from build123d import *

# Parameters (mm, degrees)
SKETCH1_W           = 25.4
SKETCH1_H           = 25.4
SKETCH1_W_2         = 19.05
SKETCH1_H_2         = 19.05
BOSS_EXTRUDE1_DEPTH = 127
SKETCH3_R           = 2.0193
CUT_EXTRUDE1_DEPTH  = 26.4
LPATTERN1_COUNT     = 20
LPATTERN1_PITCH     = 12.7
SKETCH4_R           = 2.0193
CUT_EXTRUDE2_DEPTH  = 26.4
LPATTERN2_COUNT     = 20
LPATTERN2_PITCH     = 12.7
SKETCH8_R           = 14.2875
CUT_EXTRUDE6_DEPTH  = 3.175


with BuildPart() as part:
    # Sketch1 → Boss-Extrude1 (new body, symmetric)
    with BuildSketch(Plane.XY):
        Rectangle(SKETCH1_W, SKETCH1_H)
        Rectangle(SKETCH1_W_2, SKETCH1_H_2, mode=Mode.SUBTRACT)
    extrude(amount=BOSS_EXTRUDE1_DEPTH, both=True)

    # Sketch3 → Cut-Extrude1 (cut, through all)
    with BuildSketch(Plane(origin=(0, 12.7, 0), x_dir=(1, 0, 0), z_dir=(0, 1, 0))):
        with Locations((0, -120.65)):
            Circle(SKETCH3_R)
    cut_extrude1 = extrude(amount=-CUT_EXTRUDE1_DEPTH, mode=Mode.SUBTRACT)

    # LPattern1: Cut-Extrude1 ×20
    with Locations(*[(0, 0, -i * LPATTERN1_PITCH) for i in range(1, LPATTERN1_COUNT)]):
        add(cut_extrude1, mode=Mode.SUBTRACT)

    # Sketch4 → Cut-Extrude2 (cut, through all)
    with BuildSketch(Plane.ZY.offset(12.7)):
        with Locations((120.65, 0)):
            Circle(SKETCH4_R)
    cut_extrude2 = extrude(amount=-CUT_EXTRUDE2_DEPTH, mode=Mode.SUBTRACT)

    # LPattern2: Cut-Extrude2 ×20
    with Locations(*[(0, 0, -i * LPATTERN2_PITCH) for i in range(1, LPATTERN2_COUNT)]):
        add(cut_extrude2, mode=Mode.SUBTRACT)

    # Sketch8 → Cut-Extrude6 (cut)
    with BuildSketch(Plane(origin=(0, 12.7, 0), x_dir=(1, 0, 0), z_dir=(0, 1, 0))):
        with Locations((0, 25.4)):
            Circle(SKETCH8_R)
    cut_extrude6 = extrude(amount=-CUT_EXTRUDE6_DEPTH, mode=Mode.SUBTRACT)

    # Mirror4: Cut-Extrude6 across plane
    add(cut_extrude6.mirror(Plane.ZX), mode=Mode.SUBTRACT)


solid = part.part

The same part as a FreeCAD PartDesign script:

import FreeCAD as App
import Part
import Sketcher

V = App.Vector
Q = App.Units.Quantity

doc = App.newDocument("Part")
body = doc.addObject("PartDesign::Body", "Body")

# Sketch on XY plane
sketch1 = body.newObject("Sketcher::SketchObject", "Sketch")
sketch1.AttachmentSupport = (doc.getObject("XY_Plane"), [""])
sketch1.MapMode = "FlatFace"
sketch1.addGeometry(Part.LineSegment(V(-13, 13, 0), V(-13, -13, 0)), False)
sketch1.addGeometry(Part.LineSegment(V(-13, -13, 0), V(13, -13, 0)), False)
sketch1.addGeometry(Part.LineSegment(V(13, -13, 0), V(13, 13, 0)), False)
sketch1.addGeometry(Part.LineSegment(V(13, 13, 0), V(-13, 13, 0)), False)
sketch1.addGeometry(Part.LineSegment(V(10, -10, 0), V(-10, -10, 0)), False)
sketch1.addGeometry(Part.LineSegment(V(-10, -10, 0), V(-10, 10, 0)), False)
sketch1.addGeometry(Part.LineSegment(V(-10, 10, 0), V(10, 10, 0)), False)
sketch1.addGeometry(Part.LineSegment(V(10, 10, 0), V(10, -10, 0)), False)
sketch1.addConstraint(Sketcher.Constraint("Coincident", 0, 2, 1, 1))
sketch1.addConstraint(Sketcher.Constraint("Coincident", 1, 2, 2, 1))
sketch1.addConstraint(Sketcher.Constraint("Coincident", 2, 2, 3, 1))
sketch1.addConstraint(Sketcher.Constraint("Coincident", 3, 2, 0, 1))
sketch1.addConstraint(Sketcher.Constraint("Coincident", 4, 2, 5, 1))
sketch1.addConstraint(Sketcher.Constraint("Coincident", 5, 2, 6, 1))
sketch1.addConstraint(Sketcher.Constraint("Coincident", 6, 2, 7, 1))
sketch1.addConstraint(Sketcher.Constraint("Coincident", 7, 2, 4, 1))
sketch1.addConstraint(Sketcher.Constraint("Vertical", 0))
sketch1.addConstraint(Sketcher.Constraint("Horizontal", 1))
sketch1.addConstraint(Sketcher.Constraint("Vertical", 2))
sketch1.addConstraint(Sketcher.Constraint("Horizontal", 3))
sketch1.addConstraint(Sketcher.Constraint("Horizontal", 4))
sketch1.addConstraint(Sketcher.Constraint("Vertical", 5))
sketch1.addConstraint(Sketcher.Constraint("Horizontal", 6))
sketch1.addConstraint(Sketcher.Constraint("Vertical", 7))
sketch1.addConstraint(Sketcher.Constraint("Symmetric", 0, 2, 2, 2, -1, 1))
sketch1.addConstraint(Sketcher.Constraint("Symmetric", 4, 2, 6, 2, -1, 1))
sketch1.addConstraint(Sketcher.Constraint("Equal", 3, 0))
sketch1.addConstraint(Sketcher.Constraint("Equal", 6, 5))
sketch1.addConstraint(Sketcher.Constraint("DistanceX", 1, 1, 1, 2, Q("1 in")))
sketch1.addConstraint(Sketcher.Constraint("DistanceX", 4, 2, 4, 1, Q("0.75 in")))
pad1 = body.newObject("PartDesign::Pad", "Pad")
pad1.Profile = sketch1
pad1.Length = Q("10 in")
pad1.Midplane = True

# Sketch on XZ plane
sketch2 = body.newObject("Sketcher::SketchObject", "Sketch001")
sketch2.AttachmentSupport = (doc.getObject("XZ_Plane"), [""])
sketch2.MapMode = "FlatFace"
sketch2.AttachmentOffset = App.Placement(V(0, 0, -0.5 * 25.4), App.Rotation())
sketch2.addGeometry(Part.Circle(V(0, 120.7, 0), V(0, 0, 1), 2), False)
sketch2.addConstraint(Sketcher.Constraint("PointOnObject", 0, 3, -2))
sketch2.addConstraint(Sketcher.Constraint("Diameter", 0, Q("0.159 in")))
sketch2.addConstraint(Sketcher.Constraint("DistanceY", -1, 1, 0, 3, Q("4.75 in")))
pocket1 = body.newObject("PartDesign::Pocket", "Pocket")
pocket1.Profile = sketch2
pocket1.Type = "ThroughAll"
pocket1.Reversed = True
doc.recompute()

linearpattern = body.newObject("PartDesign::LinearPattern", "LinearPattern")
linearpattern.Originals = [pocket1]
linearpattern.Direction = (doc.getObject("Z_Axis"), [""])
linearpattern.Mode = "offset"
linearpattern.Offset = Q("0.5 in")
linearpattern.Occurrences = 20
linearpattern.Reversed = True
body.Tip = linearpattern

# Sketch on YZ plane
sketch3 = body.newObject("Sketcher::SketchObject", "Sketch002")
sketch3.AttachmentSupport = (doc.getObject("YZ_Plane"), [""])
sketch3.MapMode = "FlatFace"
sketch3.AttachmentOffset = App.Placement(V(0, 0, -0.5 * 25.4), App.Rotation())
sketch3.addGeometry(Part.Circle(V(0, 120.7, 0), V(0, 0, 1), 2), False)
sketch3.addConstraint(Sketcher.Constraint("PointOnObject", 0, 3, -2))
sketch3.addConstraint(Sketcher.Constraint("Diameter", 0, Q("0.159 in")))
sketch3.addConstraint(Sketcher.Constraint("DistanceY", -1, 1, 0, 3, Q("4.75 in")))
pocket2 = body.newObject("PartDesign::Pocket", "Pocket001")
pocket2.Profile = sketch3
pocket2.Type = "ThroughAll"
pocket2.Reversed = True
doc.recompute()

linearpattern2 = body.newObject("PartDesign::LinearPattern", "LinearPattern001")
linearpattern2.Originals = [pocket2]
linearpattern2.Direction = (doc.getObject("Z_Axis"), [""])
linearpattern2.Mode = "offset"
linearpattern2.Offset = Q("0.5 in")
linearpattern2.Occurrences = 20
linearpattern2.Reversed = True
body.Tip = linearpattern2

# Sketch on XZ plane
sketch4 = body.newObject("Sketcher::SketchObject", "Sketch003")
sketch4.AttachmentSupport = (doc.getObject("XZ_Plane"), [""])
sketch4.MapMode = "FlatFace"
sketch4.AttachmentOffset = App.Placement(V(0, 0, -0.5 * 25.4), App.Rotation())
sketch4.addGeometry(Part.Circle(V(0, -25, 0), V(0, 0, 1), 14), False)
sketch4.addConstraint(Sketcher.Constraint("PointOnObject", 0, 3, -2))
sketch4.addConstraint(Sketcher.Constraint("Diameter", 0, Q("1.125 in")))
sketch4.addConstraint(Sketcher.Constraint("DistanceY", 0, 3, -1, 1, Q("1 in")))
pocket3 = body.newObject("PartDesign::Pocket", "Pocket002")
pocket3.Profile = sketch4
pocket3.Length = Q("0.125 in")
pocket3.Reversed = True
doc.recompute()

mirrored = body.newObject("PartDesign::Mirrored", "Mirrored")
mirrored.Originals = [pocket3]
mirrored.MirrorPlane = (doc.getObject("XZ_Plane"), [""])
body.Tip = mirrored

doc.recompute()
